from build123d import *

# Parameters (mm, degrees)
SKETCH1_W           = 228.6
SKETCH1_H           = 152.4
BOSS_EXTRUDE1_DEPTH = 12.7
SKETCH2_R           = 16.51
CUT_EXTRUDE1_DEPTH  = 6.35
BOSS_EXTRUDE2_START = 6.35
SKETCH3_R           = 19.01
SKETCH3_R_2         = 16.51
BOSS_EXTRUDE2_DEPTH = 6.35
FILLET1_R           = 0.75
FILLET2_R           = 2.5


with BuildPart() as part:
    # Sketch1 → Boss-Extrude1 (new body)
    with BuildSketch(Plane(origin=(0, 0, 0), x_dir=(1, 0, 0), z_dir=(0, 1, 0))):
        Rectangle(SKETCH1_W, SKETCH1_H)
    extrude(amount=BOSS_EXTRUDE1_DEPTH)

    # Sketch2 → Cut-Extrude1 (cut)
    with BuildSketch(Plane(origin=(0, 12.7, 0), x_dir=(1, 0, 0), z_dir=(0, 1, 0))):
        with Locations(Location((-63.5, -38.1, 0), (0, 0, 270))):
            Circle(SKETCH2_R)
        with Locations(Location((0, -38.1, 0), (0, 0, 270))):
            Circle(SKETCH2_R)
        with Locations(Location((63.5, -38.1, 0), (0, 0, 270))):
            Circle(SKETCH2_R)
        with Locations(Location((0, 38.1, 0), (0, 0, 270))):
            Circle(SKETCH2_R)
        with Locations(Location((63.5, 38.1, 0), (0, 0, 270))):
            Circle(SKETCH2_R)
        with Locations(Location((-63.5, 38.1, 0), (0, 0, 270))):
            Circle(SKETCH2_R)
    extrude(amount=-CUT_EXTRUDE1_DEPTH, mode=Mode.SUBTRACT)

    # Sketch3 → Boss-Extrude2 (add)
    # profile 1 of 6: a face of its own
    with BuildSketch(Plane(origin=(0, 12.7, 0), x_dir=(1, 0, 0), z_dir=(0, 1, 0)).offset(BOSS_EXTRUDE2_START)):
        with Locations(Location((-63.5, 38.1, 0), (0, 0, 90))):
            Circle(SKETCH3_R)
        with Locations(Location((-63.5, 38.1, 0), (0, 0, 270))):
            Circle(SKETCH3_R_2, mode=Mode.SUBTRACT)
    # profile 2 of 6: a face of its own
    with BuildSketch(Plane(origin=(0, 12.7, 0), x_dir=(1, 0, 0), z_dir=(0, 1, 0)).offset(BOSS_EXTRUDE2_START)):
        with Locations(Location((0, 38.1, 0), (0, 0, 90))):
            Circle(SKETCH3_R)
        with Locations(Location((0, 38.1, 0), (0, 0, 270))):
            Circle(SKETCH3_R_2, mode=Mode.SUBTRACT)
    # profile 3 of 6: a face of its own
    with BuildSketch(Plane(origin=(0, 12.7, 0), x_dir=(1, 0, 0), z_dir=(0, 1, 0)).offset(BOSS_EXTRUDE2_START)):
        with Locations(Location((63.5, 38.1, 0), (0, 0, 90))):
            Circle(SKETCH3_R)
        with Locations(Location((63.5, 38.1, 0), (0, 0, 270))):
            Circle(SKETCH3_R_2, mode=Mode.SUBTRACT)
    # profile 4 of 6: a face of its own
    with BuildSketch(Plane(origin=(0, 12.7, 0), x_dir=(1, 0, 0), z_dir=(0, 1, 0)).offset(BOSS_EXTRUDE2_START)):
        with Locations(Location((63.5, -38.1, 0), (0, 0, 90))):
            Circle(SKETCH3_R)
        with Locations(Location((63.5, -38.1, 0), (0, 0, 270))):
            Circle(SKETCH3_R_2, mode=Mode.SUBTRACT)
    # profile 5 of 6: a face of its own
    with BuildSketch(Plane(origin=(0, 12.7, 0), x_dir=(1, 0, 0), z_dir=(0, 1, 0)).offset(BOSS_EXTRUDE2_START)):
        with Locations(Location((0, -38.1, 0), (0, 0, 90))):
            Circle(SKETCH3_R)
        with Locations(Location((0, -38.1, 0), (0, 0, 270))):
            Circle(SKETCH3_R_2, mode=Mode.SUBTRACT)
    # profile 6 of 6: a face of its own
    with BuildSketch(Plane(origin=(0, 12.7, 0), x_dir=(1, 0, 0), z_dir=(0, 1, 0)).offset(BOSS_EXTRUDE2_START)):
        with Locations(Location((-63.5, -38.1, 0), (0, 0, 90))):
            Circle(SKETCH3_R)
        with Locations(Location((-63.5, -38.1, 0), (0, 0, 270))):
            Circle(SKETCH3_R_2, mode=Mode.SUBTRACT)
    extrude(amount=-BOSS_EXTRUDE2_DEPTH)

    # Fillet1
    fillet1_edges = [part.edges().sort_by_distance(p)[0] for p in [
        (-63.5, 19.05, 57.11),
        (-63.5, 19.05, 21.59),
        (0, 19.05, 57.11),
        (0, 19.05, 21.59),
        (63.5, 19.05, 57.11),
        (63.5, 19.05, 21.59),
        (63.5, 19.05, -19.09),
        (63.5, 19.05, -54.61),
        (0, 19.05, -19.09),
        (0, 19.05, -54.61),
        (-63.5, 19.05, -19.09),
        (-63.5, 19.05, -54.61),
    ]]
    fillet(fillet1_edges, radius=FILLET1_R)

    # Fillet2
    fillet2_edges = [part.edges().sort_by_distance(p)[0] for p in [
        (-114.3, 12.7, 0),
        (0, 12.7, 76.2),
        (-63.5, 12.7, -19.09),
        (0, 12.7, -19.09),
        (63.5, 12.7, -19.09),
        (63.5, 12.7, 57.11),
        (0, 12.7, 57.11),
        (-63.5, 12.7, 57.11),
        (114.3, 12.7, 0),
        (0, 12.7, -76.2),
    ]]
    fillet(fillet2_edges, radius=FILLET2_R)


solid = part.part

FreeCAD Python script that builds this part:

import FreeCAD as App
import Part
import Sketcher
from FreeCAD import Vector
Q = App.Units.Quantity


def edges_at(feature, points):
    """Names of the edges that pass closest to the given points."""
    edges = feature.Shape.Edges
    near = lambda p: min(range(len(edges)), key=lambda i: edges[i].distToShape(Part.Vertex(*p))[0])
    return sorted({f"Edge{near(p) + 1}" for p in points})


def add_polygon(sketch, points):
    """Adds a closed chain of lines whose ends are joined by coincident constraints."""
    first, n = sketch.GeometryCount, len(points)
    for a, b in zip(points, points[1:] + points[:1]):
        sketch.addGeometry(Part.LineSegment(App.Vector(*a, 0), App.Vector(*b, 0)), False)
    for i in range(n):
        sketch.addConstraint(Sketcher.Constraint("Coincident", first + i, 2, first + (i + 1) % n, 1))

doc = App.newDocument("Part")
body = doc.addObject("PartDesign::Body", "Body")

# Sketch on XZ plane
sketch1 = body.newObject("Sketcher::SketchObject", "Sketch")
sketch1.AttachmentSupport = (doc.getObject("XZ_Plane"), [""])
sketch1.MapMode = "FlatFace"
add_polygon(sketch1, [(-114.3, -76.2), (-114.3, 76.2), (114.3, 76.2), (114.3, -76.2)])  # lines 0-3
sketch1.addConstraint([
    Sketcher.Constraint("Vertical", 0),
    Sketcher.Constraint("Horizontal", 1),
    Sketcher.Constraint("Vertical", 2),
    Sketcher.Constraint("Horizontal", 3),
    Sketcher.Constraint("Symmetric", 0, 2, 2, 2, -1, 1),
    Sketcher.Constraint("DistanceX", 1, 1, 1, 2, Q("9 in")),
    Sketcher.Constraint("DistanceY", 0, 1, 0, 2, Q("6 in")),
])
pad1 = body.newObject("PartDesign::Pad", "Pad")
pad1.Profile = sketch1
pad1.Length = Q("0.5 in")
pad1.Reversed = True

# Sketch on XZ plane
sketch2 = body.newObject("Sketcher::SketchObject", "Sketch001")
sketch2.AttachmentSupport = (doc.getObject("XZ_Plane"), [""])
sketch2.MapMode = "FlatFace"
sketch2.AttachmentOffset = App.Placement(Vector(0, 0, -0.5 * 25.4), App.Rotation())
sketch2.addGeometry([
    Part.Circle(Vector(-63.5, 38.1, 0), Vector(0, 0, 1), 16.51),  # 0
    Part.Circle(Vector(0, 38.1, 0), Vector(0, 0, 1), 16.51),  # 1
    Part.Circle(Vector(63.5, 38.1, 0), Vector(0, 0, 1), 16.51),  # 2
    Part.Circle(Vector(0, -38.1, 0), Vector(0, 0, 1), 16.51),  # 3
    Part.Circle(Vector(63.5, -38.1, 0), Vector(0, 0, 1), 16.51),  # 4
    Part.Circle(Vector(-63.5, -38.1, 0), Vector(0, 0, 1), 16.51),  # 5
], False)
sketch2.addConstraint([
    Sketcher.Constraint("Equal", 0, 1),
    Sketcher.Constraint("Equal", 1, 2),
    Sketcher.Constraint("Equal", 2, 3),
    Sketcher.Constraint("Equal", 3, 4),
    Sketcher.Constraint("Equal", 4, 5),
    Sketcher.Constraint("Symmetric", 1, 3, 3, 3, -1, 1),
    Sketcher.Constraint("Symmetric", 0, 3, 4, 3, -1, 1),
    Sketcher.Constraint("Symmetric", 2, 3, 5, 3, -1, 1),
    Sketcher.Constraint("Symmetric", 0, 3, 2, 3, -2),
    Sketcher.Constraint("PointOnObject", 1, 3, -2),
    Sketcher.Constraint("Horizontal", 0, 3, 1, 3),
    Sketcher.Constraint("Diameter", 0, Q("1.3 in")),
    Sketcher.Constraint("DistanceX", 0, 3, 2, 3, Q("5 in")),
    Sketcher.Constraint("DistanceY", 3, 3, 1, 3, Q("3 in")),
])
pocket1 = body.newObject("PartDesign::Pocket", "Pocket")
pocket1.Profile = sketch2
pocket1.Length = Q("0.25 in")
pocket1.Reversed = True

# Sketch on XZ plane
sketch3 = body.newObject("Sketcher::SketchObject", "Sketch002")
sketch3.AttachmentSupport = (doc.getObject("XZ_Plane"), [""])
sketch3.MapMode = "FlatFace"
sketch3.AttachmentOffset = App.Placement(Vector(0, 0, -0.75 * 25.4), App.Rotation())
sketch3.addGeometry([
    Part.Circle(Vector(-63.5, -38.1, 0), Vector(0, 0, 1), 19.01),  # 0
    Part.Circle(Vector(-63.5, -38.1, 0), Vector(0, 0, 1), 16.51),  # 1
    Part.Circle(Vector(0, -38.1, 0), Vector(0, 0, 1), 19.01),  # 2
    Part.Circle(Vector(0, -38.1, 0), Vector(0, 0, 1), 16.51),  # 3
    Part.Circle(Vector(63.5, -38.1, 0), Vector(0, 0, 1), 19.01),  # 4
    Part.Circle(Vector(63.5, -38.1, 0), Vector(0, 0, 1), 16.51),  # 5
    Part.Circle(Vector(63.5, 38.1, 0), Vector(0, 0, 1), 19.01),  # 6
    Part.Circle(Vector(63.5, 38.1, 0), Vector(0, 0, 1), 16.51),  # 7
    Part.Circle(Vector(0, 38.1, 0), Vector(0, 0, 1), 19.01),  # 8
    Part.Circle(Vector(0, 38.1, 0), Vector(0, 0, 1), 16.51),  # 9
    Part.Circle(Vector(-63.5, 38.1, 0), Vector(0, 0, 1), 19.01),  # 10
    Part.Circle(Vector(-63.5, 38.1, 0), Vector(0, 0, 1), 16.51),  # 11
], False)
sketch3.addConstraint([
    Sketcher.Constraint("Coincident", 1, 3, 0, 3),
    Sketcher.Constraint("Coincident", 3, 3, 2, 3),
    Sketcher.Constraint("Coincident", 5, 3, 4, 3),
    Sketcher.Constraint("Coincident", 7, 3, 6, 3),
    Sketcher.Constraint("Coincident", 9, 3, 8, 3),
    Sketcher.Constraint("Coincident", 11, 3, 10, 3),
    Sketcher.Constraint("Equal", 0, 2),
    Sketcher.Constraint("Equal", 1, 3),
    Sketcher.Constraint("Equal", 2, 4),
    Sketcher.Constraint("Equal", 3, 5),
    Sketcher.Constraint("Equal", 4, 6),
    Sketcher.Constraint("Equal", 5, 7),
    Sketcher.Constraint("Equal", 6, 8),
    Sketcher.Constraint("Equal", 7, 9),
    Sketcher.Constraint("Equal", 8, 10),
    Sketcher.Constraint("Equal", 9, 11),
    Sketcher.Constraint("Symmetric", 0, 3, 6, 3, -1, 1),
    Sketcher.Constraint("Symmetric", 2, 3, 8, 3, -1, 1),
    Sketcher.Constraint("Symmetric", 4, 3, 10, 3, -1, 1),
    Sketcher.Constraint("Symmetric", 0, 3, 4, 3, -2),
    Sketcher.Constraint("PointOnObject", 2, 3, -2),
    Sketcher.Constraint("Horizontal", 1, 3, 2, 3),
    Sketcher.Constraint("Diameter", 1, Q("1.3 in")),
    Sketcher.Constraint("DistanceX", 0, 3, 4, 3, Q("5 in")),
    Sketcher.Constraint("DistanceY", 4, 3, 6, 3, Q("3 in")),
    Sketcher.Constraint("Diameter", 0, Q("38.02 mm")),
])
pad2 = body.newObject("PartDesign::Pad", "Pad001")
pad2.Profile = sketch3
pad2.Length = Q("0.25 in")
doc.recompute()

fillet = body.newObject("PartDesign::Fillet", "Fillet")
fillet.Base = (pad2, edges_at(pad2, [
    (-63.5, 19.05, 57.11),
    (-63.5, 19.05, 21.59),
    (0, 19.05, 57.11),
    (0, 19.05, 21.59),
    (63.5, 19.05, 57.11),
    (63.5, 19.05, 21.59),
    (63.5, 19.05, -19.09),
    (63.5, 19.05, -54.61),
    (0, 19.05, -19.09),
    (0, 19.05, -54.61),
    (-63.5, 19.05, -19.09),
    (-63.5, 19.05, -54.61),
]))
fillet.Radius = 0.75
doc.recompute()

fillet2 = body.newObject("PartDesign::Fillet", "Fillet001")
fillet2.Base = (fillet, edges_at(fillet, [
    (-114.3, 12.7, 0),
    (0, 12.7, 76.2),
    (-63.5, 12.7, -19.09),
    (0, 12.7, -19.09),
    (63.5, 12.7, -19.09),
    (63.5, 12.7, 57.11),
    (0, 12.7, 57.11),
    (-63.5, 12.7, 57.11),
    (114.3, 12.7, 0),
    (0, 12.7, -76.2),
]))
fillet2.Radius = 2.5

doc.recompute()
